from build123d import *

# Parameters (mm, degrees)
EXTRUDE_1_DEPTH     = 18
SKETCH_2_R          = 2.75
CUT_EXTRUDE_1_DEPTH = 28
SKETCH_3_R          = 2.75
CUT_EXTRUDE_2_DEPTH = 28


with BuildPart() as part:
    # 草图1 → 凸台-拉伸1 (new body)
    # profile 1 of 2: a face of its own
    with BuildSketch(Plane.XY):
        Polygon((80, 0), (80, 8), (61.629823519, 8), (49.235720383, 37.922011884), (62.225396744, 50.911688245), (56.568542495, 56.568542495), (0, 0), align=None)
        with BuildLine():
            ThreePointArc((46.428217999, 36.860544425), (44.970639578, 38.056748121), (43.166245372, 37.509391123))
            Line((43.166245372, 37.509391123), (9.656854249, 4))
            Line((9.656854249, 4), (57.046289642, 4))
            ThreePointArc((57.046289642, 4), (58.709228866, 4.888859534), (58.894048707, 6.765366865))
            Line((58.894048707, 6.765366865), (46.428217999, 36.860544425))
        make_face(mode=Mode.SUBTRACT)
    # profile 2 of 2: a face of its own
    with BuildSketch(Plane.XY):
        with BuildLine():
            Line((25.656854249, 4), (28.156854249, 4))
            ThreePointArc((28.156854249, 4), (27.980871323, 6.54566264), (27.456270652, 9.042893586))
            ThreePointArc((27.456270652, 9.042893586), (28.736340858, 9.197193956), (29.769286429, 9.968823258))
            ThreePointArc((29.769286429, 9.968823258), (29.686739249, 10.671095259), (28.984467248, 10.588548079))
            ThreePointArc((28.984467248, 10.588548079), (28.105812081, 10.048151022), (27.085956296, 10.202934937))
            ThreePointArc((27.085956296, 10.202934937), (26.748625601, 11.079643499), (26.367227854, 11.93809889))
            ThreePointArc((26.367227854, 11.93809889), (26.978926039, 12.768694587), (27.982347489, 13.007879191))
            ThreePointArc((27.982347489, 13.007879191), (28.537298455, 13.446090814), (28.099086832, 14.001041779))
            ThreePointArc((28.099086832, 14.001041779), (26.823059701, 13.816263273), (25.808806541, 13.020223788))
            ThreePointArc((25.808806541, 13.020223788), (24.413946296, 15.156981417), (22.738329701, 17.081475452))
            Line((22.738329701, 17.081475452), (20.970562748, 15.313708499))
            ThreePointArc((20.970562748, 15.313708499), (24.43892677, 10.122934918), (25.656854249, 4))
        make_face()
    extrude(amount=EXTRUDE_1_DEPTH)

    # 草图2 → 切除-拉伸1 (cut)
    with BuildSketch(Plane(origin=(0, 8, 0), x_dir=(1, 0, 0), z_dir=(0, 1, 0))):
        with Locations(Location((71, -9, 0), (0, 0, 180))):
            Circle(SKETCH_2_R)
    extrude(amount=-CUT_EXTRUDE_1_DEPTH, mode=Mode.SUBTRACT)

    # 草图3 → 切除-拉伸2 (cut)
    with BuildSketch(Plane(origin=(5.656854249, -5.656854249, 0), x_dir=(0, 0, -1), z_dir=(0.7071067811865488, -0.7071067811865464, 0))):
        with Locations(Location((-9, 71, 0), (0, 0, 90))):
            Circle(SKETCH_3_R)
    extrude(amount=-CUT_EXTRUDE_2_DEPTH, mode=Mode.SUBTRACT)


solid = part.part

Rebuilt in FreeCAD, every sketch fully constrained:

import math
import FreeCAD as App
import Part
import Sketcher

V = App.Vector
Q = App.Units.Quantity


def add_polygon(sketch, points):
    """Adds a closed chain of lines whose ends are joined by coincident constraints."""
    first, n = sketch.GeometryCount, len(points)
    for a, b in zip(points, points[1:] + points[:1]):
        sketch.addGeometry(Part.LineSegment(App.Vector(*a, 0), App.Vector(*b, 0)), False)
    for i in range(n):
        sketch.addConstraint(Sketcher.Constraint("Coincident", first + i, 2, first + (i + 1) % n, 1))

doc = App.newDocument("Part")
body = doc.addObject("PartDesign::Body", "Body")

# Sketch on XY plane
sketch1 = body.newObject("Sketcher::SketchObject", "Sketch")
sketch1.AttachmentSupport = (doc.getObject("XY_Plane"), [""])
sketch1.MapMode = "FlatFace"
add_polygon(sketch1, [(80, 0), (80, 8), (61.629824, 8), (49.23572, 37.922012), (62.225397, 50.911688), (56.568542, 56.568542), (0, 0)])  # lines 0-6
sketch1.addGeometry(Part.ArcOfCircle(Part.Circle(V(44.580459, 36.095178, 0), V(0, 0, 1), 2), math.radians(22.5), math.radians(135)), False)  # 7
sketch1.addGeometry(Part.LineSegment(V(46.428218, 36.860544, 0), V(58.894049, 6.765367, 0)), False)  # 8
sketch1.addGeometry(Part.ArcOfCircle(Part.Circle(V(57.04629, 6, 0), V(0, 0, 1), 2), math.radians(-90), math.radians(22.5)), False)  # 9
sketch1.addGeometry(Part.LineSegment(V(57.04629, 4, 0), V(28.156854, 4, 0)), False)  # 10
sketch1.addGeometry(Part.ArcOfCircle(Part.Circle(V(9.656854, 4, 0), V(0, 0, 1), 18.5), math.radians(0), math.radians(15.818376)), False)  # 11
sketch1.addGeometry(Part.ArcOfCircle(Part.Circle(V(27.807238, 11.518135, 0), V(0, 0, 1), 2.5), math.radians(-98.070248), math.radians(-38.296042)), False)  # 12
sketch1.addGeometry(Part.ArcOfCircle(Part.Circle(V(29.376877, 10.278686, 0), V(0, 0, 1), 0.5), math.radians(-38.296042), math.radians(141.703958)), False)  # 13
sketch1.addGeometry(Part.ArcOfCircle(Part.Circle(V(27.807238, 11.518135, 0), V(0, 0, 1), 1.5), math.radians(-118.741244), math.radians(-38.296042)), False)  # 14
sketch1.addGeometry(Part.ArcOfCircle(Part.Circle(V(9.656855, 4, 0), V(0, 0, 1), 18.5), math.radians(19.590403), math.radians(25.409596)), False)  # 15
sketch1.addGeometry(Part.ArcOfCircle(Part.Circle(V(27.807238, 11.518135, 0), V(0, 0, 1), 1.5), math.radians(83.296042), math.radians(163.741244)), False)  # 16
sketch1.addGeometry(Part.ArcOfCircle(Part.Circle(V(28.040717, 13.50446, 0), V(0, 0, 1), 0.5), math.radians(-96.703958), math.radians(83.296042)), False)  # 17
sketch1.addGeometry(Part.ArcOfCircle(Part.Circle(V(27.807238, 11.518135, 0), V(0, 0, 1), 2.5), math.radians(83.296042), math.radians(143.070248)), False)  # 18
sketch1.addGeometry(Part.ArcOfCircle(Part.Circle(V(9.656854, 4, 0), V(0, 0, 1), 18.5), math.radians(29.181624), math.radians(45)), False)  # 19
sketch1.addGeometry(Part.LineSegment(V(22.73833, 17.081475, 0), V(43.166245, 37.509391, 0)), False)  # 20
sketch1.addGeometry(Part.LineSegment(V(9.656854, 4, 0), V(20.970563, 15.313708, 0)), False)  # 21
sketch1.addGeometry(Part.ArcOfCircle(Part.Circle(V(9.656854, 4, 0), V(0, 0, 1), 16), math.radians(0), math.radians(45)), False)  # 22
sketch1.addGeometry(Part.LineSegment(V(25.656854, 4, 0), V(9.656854, 4, 0)), False)  # 23
sketch1.addConstraint(Sketcher.Constraint("Tangent", 7, 1, 8, 1))
sketch1.addConstraint(Sketcher.Constraint("Tangent", 8, 2, 9, 2))
sketch1.addConstraint(Sketcher.Constraint("Tangent", 9, 1, 10, 1))
sketch1.addConstraint(Sketcher.Constraint("Coincident", 10, 2, 11, 1))
sketch1.addConstraint(Sketcher.Constraint("Coincident", 11, 2, 12, 1))
sketch1.addConstraint(Sketcher.Constraint("Tangent", 12, 2, 13, 1))
sketch1.addConstraint(Sketcher.Constraint("Tangent", 13, 2, 14, 2))
sketch1.addConstraint(Sketcher.Constraint("Coincident", 14, 1, 15, 1))
sketch1.addConstraint(Sketcher.Constraint("Coincident", 15, 2, 16, 2))
sketch1.addConstraint(Sketcher.Constraint("Tangent", 16, 1, 17, 1))
sketch1.addConstraint(Sketcher.Constraint("Tangent", 17, 2, 18, 1))
sketch1.addConstraint(Sketcher.Constraint("Coincident", 18, 2, 19, 1))
sketch1.addConstraint(Sketcher.Constraint("Coincident", 19, 2, 20, 1))
sketch1.addConstraint(Sketcher.Constraint("Tangent", 20, 2, 7, 2))
sketch1.addConstraint(Sketcher.Constraint("Coincident", 21, 2, 22, 2))
sketch1.addConstraint(Sketcher.Constraint("Coincident", 22, 1, 23, 1))
sketch1.addConstraint(Sketcher.Constraint("Coincident", 23, 2, 21, 1))
sketch1.addConstraint(Sketcher.Constraint("Vertical", 0))
sketch1.addConstraint(Sketcher.Constraint("Horizontal", 1))
sketch1.addConstraint(Sketcher.Constraint("Horizontal", 6))
sketch1.addConstraint(Sketcher.Constraint("Horizontal", 10))
sketch1.addConstraint(Sketcher.Constraint("Horizontal", 23))
sketch1.addConstraint(Sketcher.Constraint("Coincident", 5, 2, -1, 1))
sketch1.addConstraint(Sketcher.Constraint("Coincident", 14, 3, 12, 3))
sketch1.addConstraint(Sketcher.Constraint("Coincident", 15, 3, 11, 3))
sketch1.addConstraint(Sketcher.Constraint("Coincident", 16, 3, 12, 3))
sketch1.addConstraint(Sketcher.Constraint("Coincident", 18, 3, 12, 3))
sketch1.addConstraint(Sketcher.Constraint("Coincident", 19, 3, 11, 3))
sketch1.addConstraint(Sketcher.Constraint("Coincident", 22, 3, 11, 3))
sketch1.addConstraint(Sketcher.Constraint("Coincident", 23, 2, 11, 3))
sketch1.addConstraint(Sketcher.Constraint("Equal", 7, 9))
sketch1.addConstraint(Sketcher.Constraint("Equal", 11, 15))
sketch1.addConstraint(Sketcher.Constraint("Equal", 14, 16))
sketch1.addConstraint(Sketcher.Constraint("Equal", 13, 17))
sketch1.addConstraint(Sketcher.Constraint("Equal", 15, 19))
sketch1.addConstraint(Sketcher.Constraint("Perpendicular", 3, 4))
sketch1.addConstraint(Sketcher.Constraint("Perpendicular", 4, 5))
sketch1.addConstraint(Sketcher.Constraint("Parallel", 2, 8))
sketch1.addConstraint(Sketcher.Constraint("Parallel", 5, 20))
sketch1.addConstraint(Sketcher.Constraint("Parallel", 20, 21))
sketch1.addConstraint(Sketcher.Constraint("Horizontal", 22, 3, 9, 1))
sketch1.addConstraint(Sketcher.Constraint("Radius", 7, 2.0))
sketch1.addConstraint(Sketcher.Constraint("Radius", 22, 16.0))
sketch1.addConstraint(Sketcher.Constraint("Radius", 11, 18.5))
sketch1.addConstraint(Sketcher.Constraint("Radius", 12, 2.5))
sketch1.addConstraint(Sketcher.Constraint("Radius", 13, 0.5))
sketch1.addConstraint(Sketcher.Constraint("DistanceX", 6, 1, 6, 2, 80.0))
sketch1.addConstraint(Sketcher.Constraint("DistanceY", 0, 1, 0, 2, 8.0))
sketch1.addConstraint(Sketcher.Constraint("Angle", 3, Q("45 deg")))
sketch1.addConstraint(Sketcher.Constraint("Distance", 4, 8.0))
sketch1.addConstraint(Sketcher.Constraint("Distance", 5, 80.0))
sketch1.addConstraint(Sketcher.Constraint("DistanceY", -1, 1, 9, 3, 6.0))
sketch1.addConstraint(Sketcher.Constraint("Angle", 2, Q("112.5 deg")))
sketch1.addConstraint(Sketcher.Constraint("DistanceY", 7, 1, 4, 2, 19.707998))
sketch1.addConstraint(Sketcher.Constraint("DistanceY", -1, 1, 15, 2, 11.938099))
sketch1.addConstraint(Sketcher.Constraint("DistanceX", 17, 3, 7, 1, 18.387501))
sketch1.addConstraint(Sketcher.Constraint("DistanceY", 14, 1, 14, 3, 1.3152))
sketch1.addConstraint(Sketcher.Constraint("DistanceX", 19, 2, 15, 2, 3.628898))
sketch1.addConstraint(Sketcher.Constraint("DistanceX", 1, 2, 1, 1, 18.370176))
sketch1.addConstraint(Sketcher.Constraint("DistanceX", -1, 1, 7, 3, 44.580459))
sketch1.addConstraint(Sketcher.Constraint("DistanceY", -1, 1, 13, 2, 10.588548))
pad1 = body.newObject("PartDesign::Pad", "Pad")
pad1.Profile = sketch1
pad1.Length = 18

# Sketch on XZ plane
sketch2 = body.newObject("Sketcher::SketchObject", "Sketch001")
sketch2.AttachmentSupport = (doc.getObject("XZ_Plane"), [""])
sketch2.MapMode = "FlatFace"
sketch2.AttachmentOffset = App.Placement(V(0, 0, -8), App.Rotation())
sketch2.addGeometry(Part.Circle(V(71, 9, 0), V(0, 0, 1), 2.75), False)
sketch2.addConstraint(Sketcher.Constraint("Diameter", 0, 5.5))
sketch2.addConstraint(Sketcher.Constraint("DistanceX", -1, 1, 0, 3, 71.0))
sketch2.addConstraint(Sketcher.Constraint("DistanceY", -1, 1, 0, 3, 9.0))
pocket1 = body.newObject("PartDesign::Pocket", "Pocket")
pocket1.Profile = sketch2
pocket1.Length = 28
pocket1.Reversed = True

# Sketch on an angled plane
sketch3 = body.newObject("Sketcher::SketchObject", "Sketch002")
sketch3.Placement = App.Placement(V(5.656854, -5.656854, 0), App.Rotation(V(0, 0, -1), V(0.707106781, 0.707106781, 0), V(0.707106781, -0.707106781, 0), "ZXY"))
sketch3.addGeometry(Part.Circle(V(-9, 71, 0), V(0, 0, 1), 2.75), False)
sketch3.addConstraint(Sketcher.Constraint("Diameter", 0, 5.5))
sketch3.addConstraint(Sketcher.Constraint("DistanceX", 0, 3, -1, 1, 9.0))
sketch3.addConstraint(Sketcher.Constraint("DistanceY", -1, 1, 0, 3, 71.0))
pocket2 = body.newObject("PartDesign::Pocket", "Pocket001")
pocket2.Profile = sketch3
pocket2.Length = 28

doc.recompute()
